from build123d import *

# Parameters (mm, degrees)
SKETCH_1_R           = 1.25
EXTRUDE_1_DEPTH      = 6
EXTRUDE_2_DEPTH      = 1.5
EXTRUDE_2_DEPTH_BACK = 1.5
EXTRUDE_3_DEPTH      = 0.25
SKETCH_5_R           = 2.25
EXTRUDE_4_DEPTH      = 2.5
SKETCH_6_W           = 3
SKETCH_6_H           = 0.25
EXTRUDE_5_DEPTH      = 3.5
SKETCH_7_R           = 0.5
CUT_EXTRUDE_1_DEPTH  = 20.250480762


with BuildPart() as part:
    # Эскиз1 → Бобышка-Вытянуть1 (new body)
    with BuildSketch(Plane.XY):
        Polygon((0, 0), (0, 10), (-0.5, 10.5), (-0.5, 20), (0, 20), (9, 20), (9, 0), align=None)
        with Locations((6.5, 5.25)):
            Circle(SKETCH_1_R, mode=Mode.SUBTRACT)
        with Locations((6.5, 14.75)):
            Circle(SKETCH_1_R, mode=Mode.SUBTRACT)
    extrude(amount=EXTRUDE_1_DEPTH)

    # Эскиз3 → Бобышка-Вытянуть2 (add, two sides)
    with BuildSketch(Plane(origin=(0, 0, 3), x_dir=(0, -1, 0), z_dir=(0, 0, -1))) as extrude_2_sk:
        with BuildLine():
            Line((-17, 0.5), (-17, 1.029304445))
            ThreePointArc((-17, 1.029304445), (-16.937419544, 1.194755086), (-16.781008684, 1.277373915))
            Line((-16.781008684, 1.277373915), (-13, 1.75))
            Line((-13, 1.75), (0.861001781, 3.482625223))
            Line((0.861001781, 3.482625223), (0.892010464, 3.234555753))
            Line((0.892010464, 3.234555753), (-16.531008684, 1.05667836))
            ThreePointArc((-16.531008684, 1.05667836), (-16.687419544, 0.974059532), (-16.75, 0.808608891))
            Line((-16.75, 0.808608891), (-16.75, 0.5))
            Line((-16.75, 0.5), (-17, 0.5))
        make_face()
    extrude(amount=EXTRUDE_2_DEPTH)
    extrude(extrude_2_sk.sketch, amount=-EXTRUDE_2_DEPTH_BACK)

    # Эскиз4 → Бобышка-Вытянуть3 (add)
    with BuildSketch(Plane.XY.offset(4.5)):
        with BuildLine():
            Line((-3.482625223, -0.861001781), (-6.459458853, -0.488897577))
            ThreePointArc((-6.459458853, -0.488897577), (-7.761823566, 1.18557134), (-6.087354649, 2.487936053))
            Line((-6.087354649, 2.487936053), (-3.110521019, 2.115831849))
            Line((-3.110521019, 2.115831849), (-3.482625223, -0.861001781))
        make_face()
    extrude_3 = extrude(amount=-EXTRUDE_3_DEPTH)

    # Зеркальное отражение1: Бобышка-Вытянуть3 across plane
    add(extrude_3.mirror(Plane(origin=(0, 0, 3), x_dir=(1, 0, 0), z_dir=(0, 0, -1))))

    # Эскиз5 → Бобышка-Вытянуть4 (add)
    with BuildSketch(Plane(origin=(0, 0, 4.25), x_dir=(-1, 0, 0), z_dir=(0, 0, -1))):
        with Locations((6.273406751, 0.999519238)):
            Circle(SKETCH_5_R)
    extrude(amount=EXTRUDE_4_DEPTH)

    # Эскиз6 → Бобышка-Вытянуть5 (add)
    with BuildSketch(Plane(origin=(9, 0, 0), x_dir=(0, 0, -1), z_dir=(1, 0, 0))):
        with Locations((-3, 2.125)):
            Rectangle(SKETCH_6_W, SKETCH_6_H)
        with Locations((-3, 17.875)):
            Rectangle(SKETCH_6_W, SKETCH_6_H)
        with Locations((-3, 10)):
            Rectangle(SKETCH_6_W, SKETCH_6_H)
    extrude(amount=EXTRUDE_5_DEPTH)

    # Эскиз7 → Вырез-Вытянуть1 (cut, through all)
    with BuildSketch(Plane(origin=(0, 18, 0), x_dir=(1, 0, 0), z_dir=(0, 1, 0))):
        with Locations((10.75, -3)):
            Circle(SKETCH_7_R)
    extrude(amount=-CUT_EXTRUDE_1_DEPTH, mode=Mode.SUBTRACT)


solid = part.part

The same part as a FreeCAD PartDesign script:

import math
import FreeCAD as App
import Part
import Sketcher
from FreeCAD import Vector
Q = App.Units.Quantity


def add_polygon(sketch, points):
    """Adds a closed chain of lines whose ends are joined by coincident constraints."""
    first, n = sketch.GeometryCount, len(points)
    for a, b in zip(points, points[1:] + points[:1]):
        sketch.addGeometry(Part.LineSegment(App.Vector(*a, 0), App.Vector(*b, 0)), False)
    for i in range(n):
        sketch.addConstraint(Sketcher.Constraint("Coincident", first + i, 2, first + (i + 1) % n, 1))

doc = App.newDocument("Part")
body = doc.addObject("PartDesign::Body", "Body")

sketch1 = doc.addObject("Sketcher::SketchObject", "Sketch")
body.addObject(sketch1)
sketch1.AttachmentSupport = (doc.XY_Plane, [""])
sketch1.MapMode = "FlatFace"
add_polygon(sketch1, [(0, 10), (0, 0), (9, 0), (9, 20), (-0.5, 20), (-0.5, 10.5)])
sketch1.addGeometry(Part.Circle(Vector(6.5, 5.2, 0), Vector(0, 0, 1), 1.2), False)
sketch1.addGeometry(Part.Circle(Vector(6.5, 14.8, 0), Vector(0, 0, 1), 1.2), False)
sketch1.addConstraint(Sketcher.Constraint("Vertical", 0))
sketch1.addConstraint(Sketcher.Constraint("Horizontal", 1))
sketch1.addConstraint(Sketcher.Constraint("Vertical", 2))
sketch1.addConstraint(Sketcher.Constraint("Horizontal", 3))
sketch1.addConstraint(Sketcher.Constraint("Vertical", 4))
sketch1.addConstraint(Sketcher.Constraint("Coincident", 0, 2, -1, 1))
sketch1.addConstraint(Sketcher.Constraint("Equal", 6, 7))
sketch1.addConstraint(Sketcher.Constraint("Vertical", 6, 3, 7, 3))
sketch1.addConstraint(Sketcher.Constraint("Equal", 3, 4))
sketch1.addConstraint(Sketcher.Constraint("Diameter", 6, Q("2.5 mm")))
sketch1.addConstraint(Sketcher.Constraint("DistanceX", 1, 1, 1, 2, Q("9 mm")))
sketch1.addConstraint(Sketcher.Constraint("DistanceY", 0, 2, 0, 1, Q("10 mm")))
sketch1.addConstraint(Sketcher.Constraint("DistanceY", 2, 1, 2, 2, Q("20 mm")))
sketch1.addConstraint(Sketcher.Constraint("Angle", 5, Q("-45 deg")))
sketch1.addConstraint(Sketcher.Constraint("DistanceX", 3, 2, 7, 3, Q("7 mm")))
sketch1.addConstraint(Sketcher.Constraint("DistanceY", 6, 3, 7, 3, Q("9.5 mm")))
sketch1.addConstraint(Sketcher.Constraint("DistanceY", -1, 1, 6, 3, Q("5.25 mm")))
pad1 = doc.addObject("PartDesign::Pad", "Pad")
body.addObject(pad1)
pad1.Profile = sketch1
pad1.Length = 6

sketch2 = doc.addObject("Sketcher::SketchObject", "Sketch001")
body.addObject(sketch2)
sketch2.AttachmentSupport = (doc.XY_Plane, [""])
sketch2.MapMode = "FlatFace"
sketch2.AttachmentOffset = App.Placement(Vector(0, 0, 3), App.Rotation())
sketch2.addGeometry(Part.LineSegment(Vector(-1.03, 17, 0), Vector(-0.5, 17, 0)), False)
sketch2.addGeometry(Part.LineSegment(Vector(-0.5, 17, 0), Vector(-0.5, 16.75, 0)), False)
sketch2.addGeometry(Part.LineSegment(Vector(-0.5, 16.75, 0), Vector(-0.81, 16.75, 0)), False)
sketch2.addGeometry(Part.ArcOfCircle(Part.Circle(Vector(-0.81, 16.5, 0), Vector(0, 0, 1), 0.25), math.radians(90), math.radians(173)), False)
sketch2.addGeometry(Part.LineSegment(Vector(-1.06, 16.53, 0), Vector(-3.23, -0.89, 0)), False)
sketch2.addGeometry(Part.LineSegment(Vector(-3.23, -0.89, 0), Vector(-3.48, -0.86, 0)), False)
sketch2.addGeometry(Part.LineSegment(Vector(-3.48, -0.86, 0), Vector(-1.75, 13, 0)), False)
sketch2.addGeometry(Part.LineSegment(Vector(-1.75, 13, 0), Vector(-1.28, 16.78, 0)), False)
sketch2.addGeometry(Part.ArcOfCircle(Part.Circle(Vector(-1.03, 16.75, 0), Vector(0, 0, 1), 0.25), math.radians(90), math.radians(173)), False)
sketch2.addConstraint(Sketcher.Constraint("Coincident", 0, 2, 1, 1))
sketch2.addConstraint(Sketcher.Constraint("Coincident", 1, 2, 2, 1))
sketch2.addConstraint(Sketcher.Constraint("Tangent", 2, 2, 3, 1))
sketch2.addConstraint(Sketcher.Constraint("Tangent", 3, 2, 4, 1))
sketch2.addConstraint(Sketcher.Constraint("Coincident", 4, 2, 5, 1))
sketch2.addConstraint(Sketcher.Constraint("Coincident", 5, 2, 6, 1))
sketch2.addConstraint(Sketcher.Constraint("Coincident", 6, 2, 7, 1))
sketch2.addConstraint(Sketcher.Constraint("Tangent", 7, 2, 8, 2))
sketch2.addConstraint(Sketcher.Constraint("Tangent", 8, 1, 0, 1))
sketch2.addConstraint(Sketcher.Constraint("Horizontal", 0))
sketch2.addConstraint(Sketcher.Constraint("Vertical", 1))
sketch2.addConstraint(Sketcher.Constraint("Horizontal", 2))
sketch2.addConstraint(Sketcher.Constraint("Equal", 3, 8))
sketch2.addConstraint(Sketcher.Constraint("Perpendicular", 4, 5))
sketch2.addConstraint(Sketcher.Constraint("Perpendicular", 5, 6))
sketch2.addConstraint(Sketcher.Constraint("Parallel", 6, 7))
sketch2.addConstraint(Sketcher.Constraint("Horizontal", 8, 3, 1, 2))
sketch2.addConstraint(Sketcher.Constraint("Radius", 3, Q("0.25 mm")))
sketch2.addConstraint(Sketcher.Constraint("DistanceY", -1, 1, 0, 2, Q("17 mm")))
sketch2.addConstraint(Sketcher.Constraint("DistanceY", -1, 1, 6, 2, Q("13 mm")))
sketch2.addConstraint(Sketcher.Constraint("DistanceX", 0, 2, -1, 1, Q("0.5 mm")))
sketch2.addConstraint(Sketcher.Constraint("Distance", 5, Q("0.25 mm")))
sketch2.addConstraint(Sketcher.Constraint("DistanceX", 6, 2, -1, 1, Q("1.75 mm")))
sketch2.addConstraint(Sketcher.Constraint("DistanceY", 5, 2, -1, 1, Q("0.861002 mm")))
sketch2.addConstraint(Sketcher.Constraint("DistanceX", 2, 2, 2, 1, Q("0.308609 mm")))
pad2 = doc.addObject("PartDesign::Pad", "Pad001")
body.addObject(pad2)
pad2.Profile = sketch2
pad2.Type = "TwoLengths"
pad2.Length = 1.5
pad2.Length2 = 1.5
pad2.Reversed = True

sketch3 = doc.addObject("Sketcher::SketchObject", "Sketch002")
body.addObject(sketch3)
sketch3.AttachmentSupport = (doc.XY_Plane, [""])
sketch3.MapMode = "FlatFace"
sketch3.AttachmentOffset = App.Placement(Vector(0, 0, 4.5), App.Rotation())
sketch3.addGeometry(Part.LineSegment(Vector(-6.5, -0.5, 0), Vector(-3.5, -0.9, 0)), False)
sketch3.addGeometry(Part.LineSegment(Vector(-3.5, -0.9, 0), Vector(-3.1, 2.1, 0)), False)
sketch3.addGeometry(Part.LineSegment(Vector(-3.1, 2.1, 0), Vector(-6.1, 2.5, 0)), False)
sketch3.addGeometry(Part.ArcOfCircle(Part.Circle(Vector(-6.3, 1, 0), Vector(0, 0, 1), 1.5), math.radians(83), math.radians(263)), False)
sketch3.addConstraint(Sketcher.Constraint("Coincident", 0, 2, 1, 1))
sketch3.addConstraint(Sketcher.Constraint("Coincident", 1, 2, 2, 1))
sketch3.addConstraint(Sketcher.Constraint("Tangent", 2, 2, 3, 1))
sketch3.addConstraint(Sketcher.Constraint("Tangent", 3, 2, 0, 1))
sketch3.addConstraint(Sketcher.Constraint("Perpendicular", 0, 1))
sketch3.addConstraint(Sketcher.Constraint("Perpendicular", 1, 2))
sketch3.addConstraint(Sketcher.Constraint("Equal", 0, 1))
sketch3.addConstraint(Sketcher.Constraint("Radius", 3, Q("1.5 mm")))
sketch3.addConstraint(Sketcher.Constraint("DistanceY", 0, 2, -1, 1, Q("0.861002 mm")))
sketch3.addConstraint(Sketcher.Constraint("DistanceY", -1, 1, 3, 3, Q("0.999519 mm")))
sketch3.addConstraint(Sketcher.Constraint("DistanceX", 1, 2, -1, 1, Q("3.110521 mm")))
pad3 = doc.addObject("PartDesign::Pad", "Pad002")
body.addObject(pad3)
pad3.Profile = sketch3
pad3.Length = 0.25
pad3.Reversed = True
doc.recompute()

datumplane = doc.addObject("PartDesign::Plane", "DatumPlane")
body.addObject(datumplane)
datumplane.AttachmentSupport = (doc.XY_Plane, [""])
datumplane.MapMode = "FlatFace"
datumplane.AttachmentOffset = App.Placement(Vector(0, 0, 3), App.Rotation())
mirrored = doc.addObject("PartDesign::Mirrored", "Mirrored")
body.addObject(mirrored)
mirrored.Originals = [pad3]
mirrored.MirrorPlane = (datumplane, [""])
body.Tip = mirrored

sketch4 = doc.addObject("Sketcher::SketchObject", "Sketch003")
body.addObject(sketch4)
sketch4.AttachmentSupport = (doc.XY_Plane, [""])
sketch4.MapMode = "FlatFace"
sketch4.AttachmentOffset = App.Placement(Vector(0, 0, 4.25), App.Rotation())
sketch4.addGeometry(Part.Circle(Vector(-6.3, 1, 0), Vector(0, 0, 1), 2.2), False)
sketch4.addConstraint(Sketcher.Constraint("Diameter", 0, Q("4.5 mm")))
sketch4.addConstraint(Sketcher.Constraint("DistanceY", -1, 1, 0, 3, Q("0.999519 mm")))
sketch4.addConstraint(Sketcher.Constraint("DistanceX", 0, 3, -1, 1, Q("6.273407 mm")))
pad4 = doc.addObject("PartDesign::Pad", "Pad003")
body.addObject(pad4)
pad4.Profile = sketch4
pad4.Length = 2.5
pad4.Reversed = True

sketch5 = doc.addObject("Sketcher::SketchObject", "Sketch004")
body.addObject(sketch5)
sketch5.AttachmentSupport = (doc.YZ_Plane, [""])
sketch5.MapMode = "FlatFace"
sketch5.AttachmentOffset = App.Placement(Vector(0, 0, 9), App.Rotation())
add_polygon(sketch5, [(2.25, 4.5), (2, 4.5), (2, 1.5), (2.25, 1.5)])
add_polygon(sketch5, [(18, 4.5), (17.75, 4.5), (17.75, 1.5), (18, 1.5)])
add_polygon(sketch5, [(10.12, 4.5), (9.88, 4.5), (9.88, 1.5), (10.12, 1.5)])
sketch5.addConstraint(Sketcher.Constraint("Horizontal", 0))
sketch5.addConstraint(Sketcher.Constraint("Vertical", 1))
sketch5.addConstraint(Sketcher.Constraint("Horizontal", 2))
sketch5.addConstraint(Sketcher.Constraint("Vertical", 3))
sketch5.addConstraint(Sketcher.Constraint("Horizontal", 4))
sketch5.addConstraint(Sketcher.Constraint("Vertical", 5))
sketch5.addConstraint(Sketcher.Constraint("Horizontal", 6))
sketch5.addConstraint(Sketcher.Constraint("Vertical", 7))
sketch5.addConstraint(Sketcher.Constraint("Horizontal", 8))
sketch5.addConstraint(Sketcher.Constraint("Vertical", 9))
sketch5.addConstraint(Sketcher.Constraint("Horizontal", 10))
sketch5.addConstraint(Sketcher.Constraint("Vertical", 11))
sketch5.addConstraint(Sketcher.Constraint("Horizontal", 3, 2, 4, 2))
sketch5.addConstraint(Sketcher.Constraint("Horizontal", 2, 2, 5, 2))
sketch5.addConstraint(Sketcher.Constraint("Horizontal", 7, 2, 8, 2))
sketch5.addConstraint(Sketcher.Constraint("Horizontal", 6, 2, 9, 2))
sketch5.addConstraint(Sketcher.Constraint("Equal", 2, 4))
sketch5.addConstraint(Sketcher.Constraint("Equal", 6, 8))
sketch5.addConstraint(Sketcher.Constraint("DistanceY", 1, 2, 1, 1, Q("3 mm")))
sketch5.addConstraint(Sketcher.Constraint("DistanceX", -1, 1, 0, 2, Q("2 mm")))
sketch5.addConstraint(Sketcher.Constraint("DistanceX", -1, 1, 6, 2, Q("18 mm")))
sketch5.addConstraint(Sketcher.Constraint("DistanceX", 0, 2, 0, 1, Q("0.25 mm")))
sketch5.addConstraint(Sketcher.Constraint("DistanceY", -1, 1, 0, 2, Q("4.5 mm")))
sketch5.addConstraint(Sketcher.Constraint("DistanceX", -1, 1, 8, 2, Q("9.875 mm")))
pad5 = doc.addObject("PartDesign::Pad", "Pad004")
body.addObject(pad5)
pad5.Profile = sketch5
pad5.Length = 3.5

sketch6 = doc.addObject("Sketcher::SketchObject", "Sketch005")
body.addObject(sketch6)
sketch6.AttachmentSupport = (doc.XZ_Plane, [""])
sketch6.MapMode = "FlatFace"
sketch6.AttachmentOffset = App.Placement(Vector(0, 0, -18), App.Rotation())
sketch6.addGeometry(Part.Circle(Vector(10.8, 3, 0), Vector(0, 0, 1), 0.5), False)
sketch6.addConstraint(Sketcher.Constraint("Diameter", 0, Q("1 mm")))
sketch6.addConstraint(Sketcher.Constraint("DistanceY", -1, 1, 0, 3, Q("3 mm")))
sketch6.addConstraint(Sketcher.Constraint("DistanceX", -1, 1, 0, 3, Q("10.75 mm")))
pocket1 = doc.addObject("PartDesign::Pocket", "Pocket")
body.addObject(pocket1)
pocket1.Profile = sketch6
pocket1.Type = "ThroughAll"
pocket1.Reversed = True

doc.recompute()
